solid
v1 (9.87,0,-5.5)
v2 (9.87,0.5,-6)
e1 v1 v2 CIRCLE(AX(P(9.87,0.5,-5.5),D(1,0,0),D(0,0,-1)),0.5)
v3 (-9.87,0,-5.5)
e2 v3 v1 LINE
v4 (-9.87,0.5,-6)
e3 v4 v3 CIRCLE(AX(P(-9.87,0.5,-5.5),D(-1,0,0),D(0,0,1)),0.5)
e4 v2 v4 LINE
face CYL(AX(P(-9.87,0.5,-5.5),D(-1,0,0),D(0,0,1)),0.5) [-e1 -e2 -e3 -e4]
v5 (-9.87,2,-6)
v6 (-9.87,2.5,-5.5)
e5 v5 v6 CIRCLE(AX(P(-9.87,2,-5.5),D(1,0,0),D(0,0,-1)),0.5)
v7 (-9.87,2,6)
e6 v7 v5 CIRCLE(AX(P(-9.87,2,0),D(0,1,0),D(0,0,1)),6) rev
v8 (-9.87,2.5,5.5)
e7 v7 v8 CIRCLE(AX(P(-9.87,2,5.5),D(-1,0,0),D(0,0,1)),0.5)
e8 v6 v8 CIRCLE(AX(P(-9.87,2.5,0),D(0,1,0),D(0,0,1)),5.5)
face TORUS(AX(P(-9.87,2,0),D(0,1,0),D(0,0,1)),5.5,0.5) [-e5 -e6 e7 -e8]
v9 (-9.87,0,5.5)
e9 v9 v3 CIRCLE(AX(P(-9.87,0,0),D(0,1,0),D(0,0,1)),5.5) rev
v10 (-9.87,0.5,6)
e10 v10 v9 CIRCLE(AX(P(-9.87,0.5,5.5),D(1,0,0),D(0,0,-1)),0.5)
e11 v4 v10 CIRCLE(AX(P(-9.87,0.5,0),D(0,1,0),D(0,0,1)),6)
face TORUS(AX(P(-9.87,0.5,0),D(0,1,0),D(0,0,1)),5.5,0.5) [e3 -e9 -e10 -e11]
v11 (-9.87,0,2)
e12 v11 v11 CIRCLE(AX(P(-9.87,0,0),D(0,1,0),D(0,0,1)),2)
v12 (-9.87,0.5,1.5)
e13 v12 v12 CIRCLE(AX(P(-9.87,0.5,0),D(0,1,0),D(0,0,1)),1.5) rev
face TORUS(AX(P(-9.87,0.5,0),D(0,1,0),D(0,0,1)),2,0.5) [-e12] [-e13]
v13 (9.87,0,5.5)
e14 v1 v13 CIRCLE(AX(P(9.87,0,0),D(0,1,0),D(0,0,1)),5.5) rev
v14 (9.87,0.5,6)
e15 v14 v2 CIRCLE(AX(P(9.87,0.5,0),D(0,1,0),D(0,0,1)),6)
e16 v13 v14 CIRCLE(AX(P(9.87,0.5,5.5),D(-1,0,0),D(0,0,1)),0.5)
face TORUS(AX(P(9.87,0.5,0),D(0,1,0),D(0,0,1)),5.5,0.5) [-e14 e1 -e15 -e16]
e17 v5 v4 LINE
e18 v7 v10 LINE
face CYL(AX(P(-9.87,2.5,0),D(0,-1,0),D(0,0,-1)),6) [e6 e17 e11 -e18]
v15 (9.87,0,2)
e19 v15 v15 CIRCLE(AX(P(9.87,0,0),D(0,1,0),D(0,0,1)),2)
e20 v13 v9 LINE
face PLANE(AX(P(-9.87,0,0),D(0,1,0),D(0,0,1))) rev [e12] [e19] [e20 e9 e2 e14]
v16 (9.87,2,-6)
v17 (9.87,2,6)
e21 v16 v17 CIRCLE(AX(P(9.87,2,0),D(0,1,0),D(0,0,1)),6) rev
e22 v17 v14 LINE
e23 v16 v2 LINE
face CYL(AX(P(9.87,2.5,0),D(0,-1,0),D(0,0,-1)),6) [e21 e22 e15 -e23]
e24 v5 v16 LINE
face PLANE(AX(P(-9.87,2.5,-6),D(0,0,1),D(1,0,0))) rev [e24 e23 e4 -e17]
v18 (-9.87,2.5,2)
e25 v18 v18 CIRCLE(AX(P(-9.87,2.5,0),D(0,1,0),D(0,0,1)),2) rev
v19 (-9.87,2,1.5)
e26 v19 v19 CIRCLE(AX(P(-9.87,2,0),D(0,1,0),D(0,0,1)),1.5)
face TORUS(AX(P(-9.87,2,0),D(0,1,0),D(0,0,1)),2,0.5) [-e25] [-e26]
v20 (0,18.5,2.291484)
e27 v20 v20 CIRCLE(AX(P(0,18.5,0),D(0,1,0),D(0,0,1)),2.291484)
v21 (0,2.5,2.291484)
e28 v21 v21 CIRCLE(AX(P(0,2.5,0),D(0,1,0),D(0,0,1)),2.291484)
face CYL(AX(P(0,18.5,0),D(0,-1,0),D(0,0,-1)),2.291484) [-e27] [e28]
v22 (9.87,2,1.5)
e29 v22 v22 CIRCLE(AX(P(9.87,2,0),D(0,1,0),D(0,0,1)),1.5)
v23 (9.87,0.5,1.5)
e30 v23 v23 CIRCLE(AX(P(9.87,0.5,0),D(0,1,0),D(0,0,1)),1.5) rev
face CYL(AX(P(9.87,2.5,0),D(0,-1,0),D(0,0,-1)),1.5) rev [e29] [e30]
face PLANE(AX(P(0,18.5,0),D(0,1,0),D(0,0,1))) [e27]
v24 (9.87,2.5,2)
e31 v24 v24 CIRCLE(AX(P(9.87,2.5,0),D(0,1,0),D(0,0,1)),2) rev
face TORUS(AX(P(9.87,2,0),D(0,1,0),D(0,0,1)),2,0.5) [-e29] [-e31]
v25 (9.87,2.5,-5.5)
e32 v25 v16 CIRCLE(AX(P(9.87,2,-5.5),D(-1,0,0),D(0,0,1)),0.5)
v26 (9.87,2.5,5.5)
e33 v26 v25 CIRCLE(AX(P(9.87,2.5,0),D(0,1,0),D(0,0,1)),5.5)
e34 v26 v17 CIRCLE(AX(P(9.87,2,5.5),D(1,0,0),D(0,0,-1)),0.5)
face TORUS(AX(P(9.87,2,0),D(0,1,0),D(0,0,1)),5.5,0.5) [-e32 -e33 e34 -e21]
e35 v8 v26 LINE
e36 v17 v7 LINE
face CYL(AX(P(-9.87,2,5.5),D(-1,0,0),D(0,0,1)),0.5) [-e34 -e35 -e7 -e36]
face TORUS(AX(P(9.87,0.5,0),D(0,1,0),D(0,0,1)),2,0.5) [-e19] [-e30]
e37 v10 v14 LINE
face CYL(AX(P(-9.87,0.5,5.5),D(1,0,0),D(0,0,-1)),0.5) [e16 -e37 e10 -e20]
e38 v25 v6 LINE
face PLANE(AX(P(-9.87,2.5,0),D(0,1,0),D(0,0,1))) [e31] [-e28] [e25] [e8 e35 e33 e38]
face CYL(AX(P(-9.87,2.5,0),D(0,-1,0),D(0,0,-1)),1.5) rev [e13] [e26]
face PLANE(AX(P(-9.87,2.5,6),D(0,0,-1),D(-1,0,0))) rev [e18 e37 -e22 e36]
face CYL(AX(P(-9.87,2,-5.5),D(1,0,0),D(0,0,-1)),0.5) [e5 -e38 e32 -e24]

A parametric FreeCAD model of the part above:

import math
import FreeCAD as App
import Part
import Sketcher

V = App.Vector
Q = App.Units.Quantity


def edges_at(feature, points):
    """Names of the edges that pass closest to the given points."""
    edges = feature.Shape.Edges
    near = lambda p: min(range(len(edges)), key=lambda i: edges[i].distToShape(Part.Vertex(*p))[0])
    return sorted({f"Edge{near(p) + 1}" for p in points})

doc = App.newDocument("Part")
body = doc.addObject("PartDesign::Body", "Body")

sketch1 = body.newObject("Sketcher::SketchObject", "Sketch")
sketch1.AttachmentSupport = (doc.getObject("XZ_Plane"), [""])
sketch1.MapMode = "FlatFace"
sketch1.addGeometry([
    Part.LineSegment(V(9.9, -6, 0), V(-9.9, -6, 0)),
    Part.ArcOfCircle(Part.Circle(V(-9.9, 0, 0), V(0, 0, 1), 6), math.radians(90), math.radians(270)),
    Part.LineSegment(V(-9.9, 6, 0), V(9.9, 6, 0)),
    Part.ArcOfCircle(Part.Circle(V(9.9, 0, 0), V(0, 0, 1), 6), math.radians(-90), math.radians(90)),
    Part.Circle(V(9.9, 0, 0), V(0, 0, 1), 1.5),
    Part.Circle(V(-9.9, 0, 0), V(0, 0, 1), 1.5),
], False)
sketch1.addConstraint([
    Sketcher.Constraint("Tangent", 0, 2, 1, 2),
    Sketcher.Constraint("Tangent", 1, 1, 2, 1),
    Sketcher.Constraint("Tangent", 2, 2, 3, 2),
    Sketcher.Constraint("Tangent", 3, 1, 0, 1),
    Sketcher.Constraint("Horizontal", 0),
    Sketcher.Constraint("Horizontal", 2),
    Sketcher.Constraint("Coincident", 4, 3, 3, 3),
    Sketcher.Constraint("Coincident", 5, 3, 1, 3),
    Sketcher.Constraint("Equal", 4, 5),
    Sketcher.Constraint("Symmetric", 1, 3, 3, 3, -1, 1),
    Sketcher.Constraint("Diameter", 4, Q("3 mm")),
    Sketcher.Constraint("Radius", 1, Q("6 mm")),
    Sketcher.Constraint("DistanceX", 0, 2, 0, 1, Q("19.74 mm")),
])
pad1 = body.newObject("PartDesign::Pad", "Pad")
pad1.Profile = sketch1
pad1.Length = 2.5
pad1.Reversed = True
doc.recompute()

fillet = body.newObject("PartDesign::Fillet", "Fillet")
fillet.Base = (pad1, edges_at(pad1, [
    (-9.87, 0, -1.5),
    (-9.87, 2.5, -1.5),
    (15.87, 2.5, 0),
    (9.87, 0, -1.5),
    (9.87, 2.5, -1.5),
    (0, 2.5, -6),
    (-15.87, 2.5, 0),
    (0, 0, -6),
    (15.87, 0, 0),
    (0, 0, 6),
    (-15.87, 0, 0),
    (0, 2.5, 6),
]))
fillet.Radius = 0.5

sketch2 = body.newObject("Sketcher::SketchObject", "Sketch001")
sketch2.AttachmentSupport = (doc.getObject("XZ_Plane"), [""])
sketch2.MapMode = "FlatFace"
sketch2.AttachmentOffset = App.Placement(V(0, 0, -2.5), App.Rotation())
sketch2.addGeometry(Part.Circle(V(0, 0, 0), V(0, 0, 1), 2.3), False)
sketch2.addConstraint([
    Sketcher.Constraint("Coincident", 0, 3, -1, 1),
    Sketcher.Constraint("Diameter", 0, Q("4.582969 mm")),
])
pad2 = body.newObject("PartDesign::Pad", "Pad001")
pad2.Profile = sketch2
pad2.Length = 16
pad2.Reversed = True

doc.recompute()
